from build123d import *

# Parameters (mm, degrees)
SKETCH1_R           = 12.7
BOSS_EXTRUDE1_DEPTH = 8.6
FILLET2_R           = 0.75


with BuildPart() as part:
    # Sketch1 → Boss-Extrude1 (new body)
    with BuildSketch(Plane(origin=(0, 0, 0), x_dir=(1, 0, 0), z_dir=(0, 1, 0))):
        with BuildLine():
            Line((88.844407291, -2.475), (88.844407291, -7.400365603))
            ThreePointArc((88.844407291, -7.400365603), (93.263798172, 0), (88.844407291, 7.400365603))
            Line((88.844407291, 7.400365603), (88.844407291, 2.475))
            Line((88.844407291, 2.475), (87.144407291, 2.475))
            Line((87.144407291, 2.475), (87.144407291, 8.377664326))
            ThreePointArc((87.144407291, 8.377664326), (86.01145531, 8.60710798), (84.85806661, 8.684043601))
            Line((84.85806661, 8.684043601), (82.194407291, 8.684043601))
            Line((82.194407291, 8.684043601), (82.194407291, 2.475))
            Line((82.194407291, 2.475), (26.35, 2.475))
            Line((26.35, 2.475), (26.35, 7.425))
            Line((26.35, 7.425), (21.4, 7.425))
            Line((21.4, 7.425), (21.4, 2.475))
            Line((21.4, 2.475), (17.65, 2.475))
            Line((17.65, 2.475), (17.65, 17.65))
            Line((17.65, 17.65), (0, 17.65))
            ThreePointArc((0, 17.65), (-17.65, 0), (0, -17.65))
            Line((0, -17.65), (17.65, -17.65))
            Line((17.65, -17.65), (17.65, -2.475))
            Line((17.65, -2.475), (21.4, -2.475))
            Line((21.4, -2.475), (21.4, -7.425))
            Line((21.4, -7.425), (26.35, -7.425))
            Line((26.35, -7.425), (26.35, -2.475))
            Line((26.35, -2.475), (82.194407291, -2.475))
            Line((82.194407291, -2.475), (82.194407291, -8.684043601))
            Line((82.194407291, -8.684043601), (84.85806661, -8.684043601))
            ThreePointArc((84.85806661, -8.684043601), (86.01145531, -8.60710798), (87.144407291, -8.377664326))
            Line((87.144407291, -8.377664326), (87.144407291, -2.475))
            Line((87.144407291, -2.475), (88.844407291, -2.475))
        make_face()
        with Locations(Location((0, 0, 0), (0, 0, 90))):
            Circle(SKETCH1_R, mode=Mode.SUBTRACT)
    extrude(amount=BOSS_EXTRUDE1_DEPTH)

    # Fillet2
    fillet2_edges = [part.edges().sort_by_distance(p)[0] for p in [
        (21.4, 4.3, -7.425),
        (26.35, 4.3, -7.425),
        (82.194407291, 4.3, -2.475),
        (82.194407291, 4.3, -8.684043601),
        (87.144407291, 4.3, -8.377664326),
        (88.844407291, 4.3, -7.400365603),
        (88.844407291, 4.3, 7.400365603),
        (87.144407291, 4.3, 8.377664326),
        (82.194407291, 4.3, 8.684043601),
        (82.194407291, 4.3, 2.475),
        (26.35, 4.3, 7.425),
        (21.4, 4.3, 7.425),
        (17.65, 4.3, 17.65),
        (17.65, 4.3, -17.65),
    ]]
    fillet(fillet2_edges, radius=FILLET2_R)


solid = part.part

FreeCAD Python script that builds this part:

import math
import FreeCAD as App
import Part
import Sketcher

V = App.Vector


def edges_at(feature, points):
    """Names of the edges that pass closest to the given points."""
    edges = feature.Shape.Edges
    near = lambda p: min(range(len(edges)), key=lambda i: edges[i].distToShape(Part.Vertex(*p))[0])
    return sorted({f"Edge{near(p) + 1}" for p in points})

doc = App.newDocument("Part")
params = doc.addObject("Spreadsheet::Sheet", "Params")
for row, (alias, value) in enumerate([
    ("sketch1_diameter", "25.4 mm"),
    ("sketch1_radius", "17.65 mm"),
    ("sketch1_width", "1.7 mm"),
    ("sketch1_width2", "4.95 mm"),
    ("sketch1_width3", "3.75 mm"),
    ("pad1_length", "8.6 mm"),
    ("fillet_radius", "0.75 mm"),
], start=1):
    params.set(f"A{row}", alias)
    params.set(f"B{row}", "=" + value)
    params.setAlias(f"B{row}", alias)

body = doc.addObject("PartDesign::Body", "Body")

# Sketch on XZ plane
sketch1 = doc.addObject("Sketcher::SketchObject", "Sketch")
body.addObject(sketch1)
sketch1.AttachmentSupport = (doc.XZ_Plane, [""])
sketch1.MapMode = "FlatFace"
sketch1.addGeometry([
    Part.LineSegment(V(88.844407, 2.475, 0), V(88.844407, 7.400366, 0)),  # 0
    Part.ArcOfCircle(Part.Circle(V(84.858067, 0, 0), V(0, 0, 1), 8.405732), math.radians(-61.690071), math.radians(61.690071)),  # 1
    Part.LineSegment(V(88.844407, -7.400366, 0), V(88.844407, -2.475, 0)),  # 2
    Part.LineSegment(V(88.844407, -2.475, 0), V(87.144407, -2.475, 0)),  # 3
    Part.LineSegment(V(87.144407, -2.475, 0), V(87.144407, -8.377664, 0)),  # 4
    Part.ArcOfCircle(Part.Circle(V(84.858067, 0, 0), V(0, 0, 1), 8.684044), math.radians(-90), math.radians(-74.735186)),  # 5
    Part.LineSegment(V(84.858067, -8.684044, 0), V(82.194407, -8.684044, 0)),  # 6
    Part.LineSegment(V(82.194407, -8.684044, 0), V(82.194407, -2.475, 0)),  # 7
    Part.LineSegment(V(82.194407, -2.475, 0), V(26.35, -2.475, 0)),  # 8
    Part.LineSegment(V(26.35, -2.475, 0), V(26.35, -7.425, 0)),  # 9
    Part.LineSegment(V(26.35, -7.425, 0), V(21.4, -7.425, 0)),  # 10
    Part.LineSegment(V(21.4, -7.425, 0), V(21.4, -2.475, 0)),  # 11
    Part.LineSegment(V(21.4, -2.475, 0), V(17.65, -2.475, 0)),  # 12
    Part.LineSegment(V(17.65, -2.475, 0), V(17.65, -17.65, 0)),  # 13
    Part.LineSegment(V(17.65, -17.65, 0), V(0, -17.65, 0)),  # 14
    Part.ArcOfCircle(Part.Circle(V(0, 0, 0), V(0, 0, 1), 17.65), math.radians(90), math.radians(270)),  # 15
    Part.LineSegment(V(0, 17.65, 0), V(17.65, 17.65, 0)),  # 16
    Part.LineSegment(V(17.65, 17.65, 0), V(17.65, 2.475, 0)),  # 17
    Part.LineSegment(V(17.65, 2.475, 0), V(21.4, 2.475, 0)),  # 18
    Part.LineSegment(V(21.4, 2.475, 0), V(21.4, 7.425, 0)),  # 19
    Part.LineSegment(V(21.4, 7.425, 0), V(26.35, 7.425, 0)),  # 20
    Part.LineSegment(V(26.35, 7.425, 0), V(26.35, 2.475, 0)),  # 21
    Part.LineSegment(V(26.35, 2.475, 0), V(82.194407, 2.475, 0)),  # 22
    Part.LineSegment(V(82.194407, 2.475, 0), V(82.194407, 8.684044, 0)),  # 23
    Part.LineSegment(V(82.194407, 8.684044, 0), V(84.858067, 8.684044, 0)),  # 24
    Part.ArcOfCircle(Part.Circle(V(84.858067, 0, 0), V(0, 0, 1), 8.684044), math.radians(74.735186), math.radians(90)),  # 25
    Part.LineSegment(V(87.144407, 8.377664, 0), V(87.144407, 2.475, 0)),  # 26
    Part.LineSegment(V(87.144407, 2.475, 0), V(88.844407, 2.475, 0)),  # 27
    Part.Circle(V(0, 0, 0), V(0, 0, 1), 12.7),  # 28
], False)
sketch1.addConstraint([
    Sketcher.Constraint("Coincident", 0, 2, 1, 2),
    Sketcher.Constraint("Coincident", 1, 1, 2, 1),
    Sketcher.Constraint("Coincident", 2, 2, 3, 1),
    Sketcher.Constraint("Coincident", 3, 2, 4, 1),
    Sketcher.Constraint("Coincident", 4, 2, 5, 2),
    Sketcher.Constraint("Tangent", 5, 1, 6, 1),
    Sketcher.Constraint("Coincident", 6, 2, 7, 1),
    Sketcher.Constraint("Coincident", 7, 2, 8, 1),
    Sketcher.Constraint("Coincident", 8, 2, 9, 1),
    Sketcher.Constraint("Coincident", 9, 2, 10, 1),
    Sketcher.Constraint("Coincident", 10, 2, 11, 1),
    Sketcher.Constraint("Coincident", 11, 2, 12, 1),
    Sketcher.Constraint("Coincident", 12, 2, 13, 1),
    Sketcher.Constraint("Coincident", 13, 2, 14, 1),
    Sketcher.Constraint("Tangent", 14, 2, 15, 2),
    Sketcher.Constraint("Tangent", 15, 1, 16, 1),
    Sketcher.Constraint("Coincident", 16, 2, 17, 1),
    Sketcher.Constraint("Coincident", 17, 2, 18, 1),
    Sketcher.Constraint("Coincident", 18, 2, 19, 1),
    Sketcher.Constraint("Coincident", 19, 2, 20, 1),
    Sketcher.Constraint("Coincident", 20, 2, 21, 1),
    Sketcher.Constraint("Coincident", 21, 2, 22, 1),
    Sketcher.Constraint("Coincident", 22, 2, 23, 1),
    Sketcher.Constraint("Coincident", 23, 2, 24, 1),
    Sketcher.Constraint("Tangent", 24, 2, 25, 2),
    Sketcher.Constraint("Coincident", 25, 1, 26, 1),
    Sketcher.Constraint("Coincident", 26, 2, 27, 1),
    Sketcher.Constraint("Coincident", 27, 2, 0, 1),
    Sketcher.Constraint("Vertical", 0),
    Sketcher.Constraint("Vertical", 2),
    Sketcher.Constraint("Horizontal", 3),
    Sketcher.Constraint("Vertical", 4),
    Sketcher.Constraint("Horizontal", 6),
    Sketcher.Constraint("Vertical", 7),
    Sketcher.Constraint("Horizontal", 8),
    Sketcher.Constraint("Vertical", 9),
    Sketcher.Constraint("Horizontal", 10),
    Sketcher.Constraint("Vertical", 11),
    Sketcher.Constraint("Horizontal", 12),
    Sketcher.Constraint("Vertical", 13),
    Sketcher.Constraint("Horizontal", 14),
    Sketcher.Constraint("Horizontal", 16),
    Sketcher.Constraint("Vertical", 17),
    Sketcher.Constraint("Horizontal", 18),
    Sketcher.Constraint("Vertical", 19),
    Sketcher.Constraint("Horizontal", 20),
    Sketcher.Constraint("Vertical", 21),
    Sketcher.Constraint("Horizontal", 22),
    Sketcher.Constraint("Vertical", 23),
    Sketcher.Constraint("Horizontal", 24),
    Sketcher.Constraint("Vertical", 26),
    Sketcher.Constraint("Horizontal", 27),
    Sketcher.Constraint("Coincident", 15, 3, -1, 1),
    Sketcher.Constraint("Coincident", 28, 3, -1, 1),
    Sketcher.Constraint("Coincident", 5, 3, 1, 3),
    Sketcher.Constraint("Coincident", 25, 3, 1, 3),
    Sketcher.Constraint("Equal", 5, 25),
    Sketcher.Constraint("Symmetric", 0, 2, 1, 1, -1),
    Sketcher.Constraint("Symmetric", 12, 2, 17, 2, -1),
    Sketcher.Constraint("Symmetric", 10, 2, 19, 2, -1),
    Sketcher.Constraint("Symmetric", 8, 2, 21, 2, -1),
    Sketcher.Constraint("Symmetric", 3, 2, 26, 2, -1),
    Sketcher.Constraint("Horizontal", 3, 2, 7, 2),
    Sketcher.Constraint("Horizontal", 8, 2, 11, 2),
    Sketcher.Constraint("Vertical", 7, 2, 22, 2),
    Sketcher.Constraint("Equal", 20, 9),
    Sketcher.Constraint("Diameter", 28, 25.4),
    Sketcher.Constraint("Radius", 15, 17.65),
    Sketcher.Constraint("DistanceX", 3, 2, 3, 1, 1.7),
    Sketcher.Constraint("DistanceX", 10, 2, 10, 1, 4.95),
    Sketcher.Constraint("DistanceX", 12, 2, 12, 1, 3.75),
    Sketcher.Constraint("DistanceX", 14, 2, 14, 1, 17.65),
    Sketcher.Constraint("DistanceY", 10, 2, 17, 2, 9.9),
    Sketcher.Constraint("Radius", 1, 8.405732),
    Sketcher.Constraint("DistanceX", 6, 2, 4, 2, 4.95),
    Sketcher.Constraint("Radius", 5, 8.684044),
    Sketcher.Constraint("DistanceX", 6, 2, 6, 1, 2.663659),
    Sketcher.Constraint("DistanceX", 8, 2, 8, 1, 55.844407),
])
sketch1.setExpression("Constraints[66]", "Params.sketch1_diameter")
sketch1.setExpression("Constraints[67]", "Params.sketch1_radius")
sketch1.setExpression("Constraints[68]", "Params.sketch1_width")
sketch1.setExpression("Constraints[69]", "Params.sketch1_width2")
sketch1.setExpression("Constraints[70]", "Params.sketch1_width3")
pad1 = doc.addObject("PartDesign::Pad", "Pad")
body.addObject(pad1)
pad1.Profile = sketch1
pad1.setExpression("Length", "Params.pad1_length")
pad1.Reversed = True
doc.recompute()

fillet = doc.addObject("PartDesign::Fillet", "Fillet")
body.addObject(fillet)
fillet.Base = (pad1, edges_at(pad1, [
    (21.4, 4.3, -7.425),
    (26.35, 4.3, -7.425),
    (82.194, 4.3, -2.475),
    (82.194, 4.3, -8.684),
    (87.144, 4.3, -8.378),
    (88.844, 4.3, -7.4),
    (88.844, 4.3, 7.4),
    (87.144, 4.3, 8.378),
    (82.194, 4.3, 8.684),
    (82.194, 4.3, 2.475),
    (26.35, 4.3, 7.425),
    (21.4, 4.3, 7.425),
    (17.65, 4.3, 17.65),
    (17.65, 4.3, -17.65),
]))
fillet.setExpression("Radius", "Params.fillet_radius")

doc.recompute()
